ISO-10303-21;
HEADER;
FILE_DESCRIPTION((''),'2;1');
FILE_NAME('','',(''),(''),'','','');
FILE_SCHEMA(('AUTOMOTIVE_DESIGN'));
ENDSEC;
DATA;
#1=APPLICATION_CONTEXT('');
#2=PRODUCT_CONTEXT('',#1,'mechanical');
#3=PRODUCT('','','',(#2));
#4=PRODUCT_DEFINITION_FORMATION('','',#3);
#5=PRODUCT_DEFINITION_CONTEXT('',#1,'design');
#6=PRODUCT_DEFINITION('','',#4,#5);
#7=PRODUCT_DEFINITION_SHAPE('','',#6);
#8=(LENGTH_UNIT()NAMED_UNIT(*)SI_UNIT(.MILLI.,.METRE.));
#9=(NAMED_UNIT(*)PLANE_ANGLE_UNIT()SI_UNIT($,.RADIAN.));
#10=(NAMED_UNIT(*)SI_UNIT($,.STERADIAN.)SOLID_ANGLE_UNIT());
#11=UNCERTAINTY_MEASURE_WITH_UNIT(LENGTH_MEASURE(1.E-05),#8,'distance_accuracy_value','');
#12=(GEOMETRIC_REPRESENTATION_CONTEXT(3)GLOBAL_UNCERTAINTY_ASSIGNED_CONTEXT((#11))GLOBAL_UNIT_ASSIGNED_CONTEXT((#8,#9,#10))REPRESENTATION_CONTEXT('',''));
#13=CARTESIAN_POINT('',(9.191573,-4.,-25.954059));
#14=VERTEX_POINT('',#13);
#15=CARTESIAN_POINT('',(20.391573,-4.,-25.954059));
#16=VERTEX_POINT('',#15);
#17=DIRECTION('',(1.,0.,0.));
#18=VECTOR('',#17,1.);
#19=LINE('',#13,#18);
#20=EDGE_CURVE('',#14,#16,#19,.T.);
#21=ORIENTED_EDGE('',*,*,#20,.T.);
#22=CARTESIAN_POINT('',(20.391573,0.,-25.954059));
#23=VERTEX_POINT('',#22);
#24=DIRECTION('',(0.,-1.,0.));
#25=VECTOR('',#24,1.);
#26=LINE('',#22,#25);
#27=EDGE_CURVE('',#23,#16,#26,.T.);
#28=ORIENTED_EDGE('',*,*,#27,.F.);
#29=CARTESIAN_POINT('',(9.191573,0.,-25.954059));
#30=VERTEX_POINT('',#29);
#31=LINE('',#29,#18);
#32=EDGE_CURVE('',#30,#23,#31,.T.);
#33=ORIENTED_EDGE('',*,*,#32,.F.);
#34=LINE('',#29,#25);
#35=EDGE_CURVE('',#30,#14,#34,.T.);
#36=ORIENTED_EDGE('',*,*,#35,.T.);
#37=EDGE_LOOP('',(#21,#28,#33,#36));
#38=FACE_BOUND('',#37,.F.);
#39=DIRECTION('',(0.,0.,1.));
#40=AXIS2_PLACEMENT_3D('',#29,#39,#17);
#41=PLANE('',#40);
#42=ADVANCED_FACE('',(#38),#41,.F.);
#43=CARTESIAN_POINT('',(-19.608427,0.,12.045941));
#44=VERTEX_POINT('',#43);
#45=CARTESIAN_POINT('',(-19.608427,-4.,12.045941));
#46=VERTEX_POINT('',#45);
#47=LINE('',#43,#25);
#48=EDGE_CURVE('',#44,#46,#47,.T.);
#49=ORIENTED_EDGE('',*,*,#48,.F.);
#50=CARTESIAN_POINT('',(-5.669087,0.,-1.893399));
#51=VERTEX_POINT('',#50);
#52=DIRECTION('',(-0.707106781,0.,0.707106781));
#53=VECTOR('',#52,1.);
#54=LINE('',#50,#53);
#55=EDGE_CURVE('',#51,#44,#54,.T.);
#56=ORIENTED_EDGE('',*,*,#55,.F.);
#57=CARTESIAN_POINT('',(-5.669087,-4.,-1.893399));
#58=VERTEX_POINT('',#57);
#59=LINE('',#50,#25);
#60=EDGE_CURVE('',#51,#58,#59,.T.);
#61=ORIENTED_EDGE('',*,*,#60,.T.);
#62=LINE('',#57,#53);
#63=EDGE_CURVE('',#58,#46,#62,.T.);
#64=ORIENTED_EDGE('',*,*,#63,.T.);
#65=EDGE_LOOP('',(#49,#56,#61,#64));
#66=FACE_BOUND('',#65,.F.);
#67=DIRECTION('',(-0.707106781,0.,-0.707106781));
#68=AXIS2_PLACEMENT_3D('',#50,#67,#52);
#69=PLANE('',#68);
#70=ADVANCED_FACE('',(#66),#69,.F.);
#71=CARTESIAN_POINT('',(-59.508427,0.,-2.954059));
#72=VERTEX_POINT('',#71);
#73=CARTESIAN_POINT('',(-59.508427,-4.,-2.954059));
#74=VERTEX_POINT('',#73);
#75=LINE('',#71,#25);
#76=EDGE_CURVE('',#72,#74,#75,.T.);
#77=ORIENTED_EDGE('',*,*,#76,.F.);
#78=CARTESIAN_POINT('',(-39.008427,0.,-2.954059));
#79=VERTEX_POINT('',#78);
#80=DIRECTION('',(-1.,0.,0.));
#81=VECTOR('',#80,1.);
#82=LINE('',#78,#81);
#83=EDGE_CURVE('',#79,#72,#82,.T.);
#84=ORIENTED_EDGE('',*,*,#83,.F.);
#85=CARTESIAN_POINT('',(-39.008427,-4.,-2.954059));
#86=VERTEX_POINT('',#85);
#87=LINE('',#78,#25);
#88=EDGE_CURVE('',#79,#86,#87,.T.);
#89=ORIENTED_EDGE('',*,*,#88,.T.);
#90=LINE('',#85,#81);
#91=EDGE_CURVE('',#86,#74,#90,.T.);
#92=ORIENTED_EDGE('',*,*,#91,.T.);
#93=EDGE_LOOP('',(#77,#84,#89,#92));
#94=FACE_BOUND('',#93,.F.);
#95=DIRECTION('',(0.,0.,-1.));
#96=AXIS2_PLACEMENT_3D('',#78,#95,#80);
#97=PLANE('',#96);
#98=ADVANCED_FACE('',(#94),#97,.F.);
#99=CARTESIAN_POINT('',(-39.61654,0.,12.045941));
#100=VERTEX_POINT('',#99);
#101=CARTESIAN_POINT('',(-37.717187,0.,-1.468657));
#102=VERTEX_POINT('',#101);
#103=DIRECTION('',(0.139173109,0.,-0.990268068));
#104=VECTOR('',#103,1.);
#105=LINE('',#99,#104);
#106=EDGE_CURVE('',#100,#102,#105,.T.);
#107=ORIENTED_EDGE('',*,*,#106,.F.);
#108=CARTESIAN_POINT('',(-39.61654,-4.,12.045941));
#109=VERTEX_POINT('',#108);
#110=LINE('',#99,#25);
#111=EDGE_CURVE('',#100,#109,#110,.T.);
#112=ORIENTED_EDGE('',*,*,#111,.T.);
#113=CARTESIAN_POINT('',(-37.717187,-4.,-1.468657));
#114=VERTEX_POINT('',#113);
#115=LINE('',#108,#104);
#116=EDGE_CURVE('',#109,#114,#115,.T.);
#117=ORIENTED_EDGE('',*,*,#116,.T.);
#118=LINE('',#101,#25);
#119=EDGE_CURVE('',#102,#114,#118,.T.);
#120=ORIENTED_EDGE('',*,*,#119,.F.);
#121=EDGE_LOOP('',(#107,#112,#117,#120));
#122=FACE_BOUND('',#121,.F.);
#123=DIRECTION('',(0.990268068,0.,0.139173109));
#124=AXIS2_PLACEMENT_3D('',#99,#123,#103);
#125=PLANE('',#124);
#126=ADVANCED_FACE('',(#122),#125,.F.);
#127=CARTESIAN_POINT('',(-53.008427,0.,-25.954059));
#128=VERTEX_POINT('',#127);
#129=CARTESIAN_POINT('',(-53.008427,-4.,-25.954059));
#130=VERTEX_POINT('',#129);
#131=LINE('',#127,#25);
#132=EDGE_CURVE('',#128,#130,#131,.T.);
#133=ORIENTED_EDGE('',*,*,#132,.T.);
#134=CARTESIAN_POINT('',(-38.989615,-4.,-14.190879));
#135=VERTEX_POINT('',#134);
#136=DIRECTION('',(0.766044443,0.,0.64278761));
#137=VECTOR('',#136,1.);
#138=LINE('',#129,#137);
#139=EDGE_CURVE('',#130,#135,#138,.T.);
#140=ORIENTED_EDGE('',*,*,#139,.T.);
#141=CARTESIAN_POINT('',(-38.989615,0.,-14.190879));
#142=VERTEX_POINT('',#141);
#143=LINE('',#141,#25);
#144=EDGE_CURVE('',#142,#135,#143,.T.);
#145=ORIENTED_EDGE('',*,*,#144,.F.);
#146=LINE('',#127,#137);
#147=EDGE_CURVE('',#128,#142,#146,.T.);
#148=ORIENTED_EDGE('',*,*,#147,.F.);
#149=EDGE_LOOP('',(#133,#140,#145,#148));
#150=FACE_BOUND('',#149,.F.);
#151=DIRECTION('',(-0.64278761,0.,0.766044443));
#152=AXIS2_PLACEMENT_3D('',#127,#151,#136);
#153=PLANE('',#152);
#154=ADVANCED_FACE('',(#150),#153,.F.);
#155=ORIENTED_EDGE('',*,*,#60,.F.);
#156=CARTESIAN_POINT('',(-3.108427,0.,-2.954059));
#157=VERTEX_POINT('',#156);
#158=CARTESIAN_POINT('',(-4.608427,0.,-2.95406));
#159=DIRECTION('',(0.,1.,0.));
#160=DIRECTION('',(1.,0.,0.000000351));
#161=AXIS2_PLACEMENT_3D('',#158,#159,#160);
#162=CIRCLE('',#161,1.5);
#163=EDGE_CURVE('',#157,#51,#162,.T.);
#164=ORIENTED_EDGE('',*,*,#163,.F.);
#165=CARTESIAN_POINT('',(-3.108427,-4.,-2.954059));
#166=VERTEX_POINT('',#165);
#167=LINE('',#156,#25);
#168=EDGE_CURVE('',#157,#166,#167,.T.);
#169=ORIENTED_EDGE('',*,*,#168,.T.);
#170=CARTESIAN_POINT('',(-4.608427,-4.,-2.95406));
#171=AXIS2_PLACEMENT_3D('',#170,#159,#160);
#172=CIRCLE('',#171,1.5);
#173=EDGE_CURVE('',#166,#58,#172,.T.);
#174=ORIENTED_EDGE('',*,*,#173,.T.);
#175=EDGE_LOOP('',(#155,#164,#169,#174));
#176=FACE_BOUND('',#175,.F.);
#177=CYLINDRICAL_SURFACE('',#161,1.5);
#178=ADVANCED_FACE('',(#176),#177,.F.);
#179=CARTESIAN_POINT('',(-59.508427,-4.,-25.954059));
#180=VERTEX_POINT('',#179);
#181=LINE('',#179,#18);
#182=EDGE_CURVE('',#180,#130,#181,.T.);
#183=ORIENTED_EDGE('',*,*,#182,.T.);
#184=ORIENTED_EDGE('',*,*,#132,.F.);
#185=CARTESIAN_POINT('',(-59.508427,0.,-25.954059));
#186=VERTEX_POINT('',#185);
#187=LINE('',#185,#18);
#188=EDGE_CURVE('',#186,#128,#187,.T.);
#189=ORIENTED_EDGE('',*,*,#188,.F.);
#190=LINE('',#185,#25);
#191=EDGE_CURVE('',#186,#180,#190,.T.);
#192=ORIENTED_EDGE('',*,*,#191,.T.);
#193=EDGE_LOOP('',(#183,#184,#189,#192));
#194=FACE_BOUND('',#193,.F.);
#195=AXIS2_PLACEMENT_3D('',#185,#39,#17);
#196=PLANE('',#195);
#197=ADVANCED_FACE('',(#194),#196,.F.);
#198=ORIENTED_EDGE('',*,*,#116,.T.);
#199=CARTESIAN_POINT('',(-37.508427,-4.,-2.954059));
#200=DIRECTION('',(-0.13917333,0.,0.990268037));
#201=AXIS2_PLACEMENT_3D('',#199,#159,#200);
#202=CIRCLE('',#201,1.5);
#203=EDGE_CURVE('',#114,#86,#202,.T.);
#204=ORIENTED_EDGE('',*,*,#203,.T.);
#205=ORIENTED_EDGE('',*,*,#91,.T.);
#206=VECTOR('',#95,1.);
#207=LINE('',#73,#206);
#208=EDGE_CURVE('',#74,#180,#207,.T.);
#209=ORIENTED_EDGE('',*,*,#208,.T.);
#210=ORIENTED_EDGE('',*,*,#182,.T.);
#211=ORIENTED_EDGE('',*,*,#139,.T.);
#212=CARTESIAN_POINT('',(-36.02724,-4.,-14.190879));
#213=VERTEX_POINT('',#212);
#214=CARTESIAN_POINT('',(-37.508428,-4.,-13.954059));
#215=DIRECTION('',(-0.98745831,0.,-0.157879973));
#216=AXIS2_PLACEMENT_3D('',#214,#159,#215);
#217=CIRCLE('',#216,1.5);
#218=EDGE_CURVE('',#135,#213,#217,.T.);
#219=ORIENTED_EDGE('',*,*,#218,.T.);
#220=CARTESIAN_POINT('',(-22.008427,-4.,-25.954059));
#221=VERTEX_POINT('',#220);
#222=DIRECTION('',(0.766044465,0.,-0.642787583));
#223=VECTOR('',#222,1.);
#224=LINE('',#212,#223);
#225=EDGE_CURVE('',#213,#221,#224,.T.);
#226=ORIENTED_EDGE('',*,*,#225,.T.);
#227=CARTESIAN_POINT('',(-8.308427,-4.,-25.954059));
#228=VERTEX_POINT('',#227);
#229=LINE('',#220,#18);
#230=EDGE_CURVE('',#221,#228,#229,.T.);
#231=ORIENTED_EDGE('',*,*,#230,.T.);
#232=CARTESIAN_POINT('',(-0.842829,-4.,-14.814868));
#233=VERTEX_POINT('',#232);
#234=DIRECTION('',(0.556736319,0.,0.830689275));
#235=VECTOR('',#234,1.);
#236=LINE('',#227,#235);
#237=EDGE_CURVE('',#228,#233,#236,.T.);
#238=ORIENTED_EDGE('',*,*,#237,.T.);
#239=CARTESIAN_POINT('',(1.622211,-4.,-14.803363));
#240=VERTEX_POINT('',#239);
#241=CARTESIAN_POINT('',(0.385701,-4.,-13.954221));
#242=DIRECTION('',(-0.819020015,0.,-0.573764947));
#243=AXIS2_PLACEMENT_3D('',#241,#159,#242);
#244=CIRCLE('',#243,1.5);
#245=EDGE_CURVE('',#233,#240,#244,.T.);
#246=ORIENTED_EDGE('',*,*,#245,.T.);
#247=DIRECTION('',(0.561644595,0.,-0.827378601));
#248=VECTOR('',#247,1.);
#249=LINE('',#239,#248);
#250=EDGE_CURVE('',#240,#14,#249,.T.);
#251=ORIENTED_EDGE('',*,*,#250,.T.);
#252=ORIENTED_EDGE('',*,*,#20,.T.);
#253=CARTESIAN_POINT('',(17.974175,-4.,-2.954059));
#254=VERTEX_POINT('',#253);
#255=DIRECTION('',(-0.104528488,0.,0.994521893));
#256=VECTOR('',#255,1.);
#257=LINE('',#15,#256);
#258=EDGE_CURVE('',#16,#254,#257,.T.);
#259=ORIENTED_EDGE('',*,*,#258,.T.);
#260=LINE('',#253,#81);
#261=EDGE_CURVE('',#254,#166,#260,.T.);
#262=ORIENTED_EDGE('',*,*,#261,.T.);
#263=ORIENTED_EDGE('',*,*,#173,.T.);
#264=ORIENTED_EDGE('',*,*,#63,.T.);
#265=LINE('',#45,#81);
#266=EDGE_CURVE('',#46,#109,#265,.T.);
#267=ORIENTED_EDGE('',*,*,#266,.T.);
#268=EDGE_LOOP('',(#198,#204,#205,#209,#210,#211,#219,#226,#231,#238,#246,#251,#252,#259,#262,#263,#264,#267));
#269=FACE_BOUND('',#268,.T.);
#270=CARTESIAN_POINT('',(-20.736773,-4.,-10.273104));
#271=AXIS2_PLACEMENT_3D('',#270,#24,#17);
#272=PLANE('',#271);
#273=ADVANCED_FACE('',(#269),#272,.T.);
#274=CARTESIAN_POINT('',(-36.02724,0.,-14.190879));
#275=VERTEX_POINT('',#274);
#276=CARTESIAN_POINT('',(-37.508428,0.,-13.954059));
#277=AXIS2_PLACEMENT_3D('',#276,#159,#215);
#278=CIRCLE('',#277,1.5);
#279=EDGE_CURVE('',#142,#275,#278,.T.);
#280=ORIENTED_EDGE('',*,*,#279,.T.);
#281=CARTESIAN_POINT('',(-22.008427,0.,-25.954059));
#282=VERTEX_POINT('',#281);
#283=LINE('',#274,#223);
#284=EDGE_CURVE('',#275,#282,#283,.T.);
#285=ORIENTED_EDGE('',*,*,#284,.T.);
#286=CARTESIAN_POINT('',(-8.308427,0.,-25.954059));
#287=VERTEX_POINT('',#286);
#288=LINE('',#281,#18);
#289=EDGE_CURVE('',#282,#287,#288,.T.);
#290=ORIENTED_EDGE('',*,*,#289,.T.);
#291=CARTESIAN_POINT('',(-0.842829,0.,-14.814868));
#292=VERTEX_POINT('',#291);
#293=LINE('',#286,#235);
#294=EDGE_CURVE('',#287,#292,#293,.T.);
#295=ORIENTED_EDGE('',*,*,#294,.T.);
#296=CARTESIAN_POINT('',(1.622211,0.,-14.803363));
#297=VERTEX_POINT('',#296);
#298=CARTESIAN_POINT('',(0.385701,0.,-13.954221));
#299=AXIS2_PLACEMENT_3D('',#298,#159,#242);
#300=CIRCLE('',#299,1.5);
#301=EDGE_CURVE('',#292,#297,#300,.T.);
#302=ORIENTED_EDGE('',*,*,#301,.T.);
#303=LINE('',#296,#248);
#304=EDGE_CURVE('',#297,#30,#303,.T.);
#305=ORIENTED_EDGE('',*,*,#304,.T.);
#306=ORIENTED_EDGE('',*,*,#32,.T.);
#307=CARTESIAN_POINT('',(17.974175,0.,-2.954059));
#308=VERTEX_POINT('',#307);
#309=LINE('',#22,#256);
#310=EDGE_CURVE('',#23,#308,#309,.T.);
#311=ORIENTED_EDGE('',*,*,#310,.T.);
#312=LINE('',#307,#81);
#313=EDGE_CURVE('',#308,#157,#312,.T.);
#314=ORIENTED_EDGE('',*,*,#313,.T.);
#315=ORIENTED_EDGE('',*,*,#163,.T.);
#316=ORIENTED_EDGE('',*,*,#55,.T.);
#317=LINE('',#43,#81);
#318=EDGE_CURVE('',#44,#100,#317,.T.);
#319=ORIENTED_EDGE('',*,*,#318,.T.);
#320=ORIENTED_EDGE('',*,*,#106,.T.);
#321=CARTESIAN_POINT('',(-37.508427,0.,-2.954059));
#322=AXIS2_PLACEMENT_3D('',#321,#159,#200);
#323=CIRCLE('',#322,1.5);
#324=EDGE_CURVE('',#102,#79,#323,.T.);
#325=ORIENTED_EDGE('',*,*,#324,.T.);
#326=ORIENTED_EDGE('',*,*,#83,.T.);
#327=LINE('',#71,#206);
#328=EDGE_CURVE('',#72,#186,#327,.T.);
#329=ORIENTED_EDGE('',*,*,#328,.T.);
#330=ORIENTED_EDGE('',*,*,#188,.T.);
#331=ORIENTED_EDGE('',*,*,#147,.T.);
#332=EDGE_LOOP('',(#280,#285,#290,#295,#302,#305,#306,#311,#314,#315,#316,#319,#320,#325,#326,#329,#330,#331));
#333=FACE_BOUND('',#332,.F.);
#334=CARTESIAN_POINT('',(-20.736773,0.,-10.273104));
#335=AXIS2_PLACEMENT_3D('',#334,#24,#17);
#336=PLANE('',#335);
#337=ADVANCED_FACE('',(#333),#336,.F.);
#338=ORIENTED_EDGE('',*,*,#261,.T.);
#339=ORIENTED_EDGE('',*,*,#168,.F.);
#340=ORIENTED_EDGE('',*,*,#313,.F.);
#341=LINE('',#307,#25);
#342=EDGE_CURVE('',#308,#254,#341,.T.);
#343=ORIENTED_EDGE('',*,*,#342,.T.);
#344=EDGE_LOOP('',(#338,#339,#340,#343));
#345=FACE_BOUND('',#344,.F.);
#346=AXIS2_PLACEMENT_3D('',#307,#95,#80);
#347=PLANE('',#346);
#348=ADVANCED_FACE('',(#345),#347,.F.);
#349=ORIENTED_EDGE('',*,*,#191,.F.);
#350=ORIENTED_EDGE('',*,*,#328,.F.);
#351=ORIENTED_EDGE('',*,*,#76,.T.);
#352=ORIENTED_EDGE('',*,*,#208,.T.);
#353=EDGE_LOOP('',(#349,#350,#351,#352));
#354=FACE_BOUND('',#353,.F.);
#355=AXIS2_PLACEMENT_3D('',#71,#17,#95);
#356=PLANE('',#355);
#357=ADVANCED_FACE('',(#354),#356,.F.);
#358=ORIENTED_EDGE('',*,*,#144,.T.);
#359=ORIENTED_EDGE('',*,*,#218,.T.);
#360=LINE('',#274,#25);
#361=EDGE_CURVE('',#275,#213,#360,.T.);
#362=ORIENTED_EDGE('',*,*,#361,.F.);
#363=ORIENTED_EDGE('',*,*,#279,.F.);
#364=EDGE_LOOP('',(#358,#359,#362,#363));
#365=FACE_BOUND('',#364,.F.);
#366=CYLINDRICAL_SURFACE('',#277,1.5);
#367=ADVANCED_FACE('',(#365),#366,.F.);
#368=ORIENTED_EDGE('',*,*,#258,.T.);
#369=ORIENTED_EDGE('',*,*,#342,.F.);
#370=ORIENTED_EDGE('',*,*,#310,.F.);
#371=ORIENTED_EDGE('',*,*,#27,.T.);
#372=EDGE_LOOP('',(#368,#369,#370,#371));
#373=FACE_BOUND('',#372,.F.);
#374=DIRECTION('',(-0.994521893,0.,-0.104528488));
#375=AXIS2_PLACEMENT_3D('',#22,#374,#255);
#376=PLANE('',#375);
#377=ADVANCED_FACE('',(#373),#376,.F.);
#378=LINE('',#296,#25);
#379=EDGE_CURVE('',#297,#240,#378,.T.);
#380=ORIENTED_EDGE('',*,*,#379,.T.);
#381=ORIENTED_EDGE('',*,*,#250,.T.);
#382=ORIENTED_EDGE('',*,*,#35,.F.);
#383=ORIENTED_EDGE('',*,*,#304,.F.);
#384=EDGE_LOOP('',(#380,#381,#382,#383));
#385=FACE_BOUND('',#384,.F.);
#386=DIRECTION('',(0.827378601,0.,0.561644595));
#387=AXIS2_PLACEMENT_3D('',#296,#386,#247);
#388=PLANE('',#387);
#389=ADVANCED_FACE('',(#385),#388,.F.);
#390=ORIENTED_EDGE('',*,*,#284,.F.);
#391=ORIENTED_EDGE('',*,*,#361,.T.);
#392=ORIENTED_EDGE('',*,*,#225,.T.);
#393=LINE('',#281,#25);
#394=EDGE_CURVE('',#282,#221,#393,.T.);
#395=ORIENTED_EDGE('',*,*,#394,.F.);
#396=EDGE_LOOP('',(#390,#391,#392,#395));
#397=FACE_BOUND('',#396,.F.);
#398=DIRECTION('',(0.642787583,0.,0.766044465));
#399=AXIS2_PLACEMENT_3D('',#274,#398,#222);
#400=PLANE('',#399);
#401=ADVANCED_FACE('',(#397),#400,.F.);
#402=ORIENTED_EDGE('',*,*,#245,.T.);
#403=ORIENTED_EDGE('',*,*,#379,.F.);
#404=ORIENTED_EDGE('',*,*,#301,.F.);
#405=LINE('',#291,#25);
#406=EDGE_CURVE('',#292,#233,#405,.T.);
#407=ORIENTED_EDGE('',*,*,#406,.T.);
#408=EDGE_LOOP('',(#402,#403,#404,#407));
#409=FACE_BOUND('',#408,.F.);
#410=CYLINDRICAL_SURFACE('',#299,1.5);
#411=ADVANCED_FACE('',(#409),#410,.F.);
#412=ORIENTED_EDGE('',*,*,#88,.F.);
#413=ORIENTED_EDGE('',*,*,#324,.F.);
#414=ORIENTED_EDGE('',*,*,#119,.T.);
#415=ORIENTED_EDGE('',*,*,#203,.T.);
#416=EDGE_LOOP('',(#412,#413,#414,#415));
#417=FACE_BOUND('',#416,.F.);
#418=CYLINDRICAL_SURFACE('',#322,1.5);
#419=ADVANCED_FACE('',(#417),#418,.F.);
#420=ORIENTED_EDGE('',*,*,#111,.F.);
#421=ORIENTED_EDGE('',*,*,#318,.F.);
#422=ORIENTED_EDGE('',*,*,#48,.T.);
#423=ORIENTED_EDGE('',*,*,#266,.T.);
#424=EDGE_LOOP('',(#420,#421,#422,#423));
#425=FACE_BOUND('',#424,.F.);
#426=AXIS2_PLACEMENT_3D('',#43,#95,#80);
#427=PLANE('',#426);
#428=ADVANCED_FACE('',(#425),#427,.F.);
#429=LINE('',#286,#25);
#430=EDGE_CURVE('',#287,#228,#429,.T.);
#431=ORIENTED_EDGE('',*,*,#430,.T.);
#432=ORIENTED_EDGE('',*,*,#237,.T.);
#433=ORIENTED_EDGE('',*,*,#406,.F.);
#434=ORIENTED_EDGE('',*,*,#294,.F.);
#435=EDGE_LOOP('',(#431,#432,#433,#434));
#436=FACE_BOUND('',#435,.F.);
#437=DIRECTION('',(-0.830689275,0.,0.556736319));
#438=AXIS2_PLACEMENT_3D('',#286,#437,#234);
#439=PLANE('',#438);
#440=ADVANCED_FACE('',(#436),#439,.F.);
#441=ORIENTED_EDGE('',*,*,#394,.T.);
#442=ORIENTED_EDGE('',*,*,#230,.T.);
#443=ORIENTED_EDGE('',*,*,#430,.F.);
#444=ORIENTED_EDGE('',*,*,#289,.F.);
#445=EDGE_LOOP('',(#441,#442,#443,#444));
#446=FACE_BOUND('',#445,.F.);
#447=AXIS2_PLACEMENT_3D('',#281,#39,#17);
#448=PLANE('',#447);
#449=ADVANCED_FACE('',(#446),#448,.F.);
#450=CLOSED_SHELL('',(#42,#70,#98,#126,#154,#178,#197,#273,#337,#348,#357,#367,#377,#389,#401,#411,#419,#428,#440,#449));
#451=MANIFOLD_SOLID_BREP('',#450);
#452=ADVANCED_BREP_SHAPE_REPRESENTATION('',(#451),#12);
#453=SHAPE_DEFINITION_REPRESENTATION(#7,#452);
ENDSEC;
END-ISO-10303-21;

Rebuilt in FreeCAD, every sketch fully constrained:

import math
import FreeCAD as App
import Part
import Sketcher

V = App.Vector
Q = App.Units.Quantity

doc = App.newDocument("Part")
body = doc.addObject("PartDesign::Body", "Body")

# Sketch on XZ plane
sketch1 = body.newObject("Sketcher::SketchObject", "Sketch")
sketch1.AttachmentSupport = (doc.getObject("XZ_Plane"), [""])
sketch1.MapMode = "FlatFace"
sketch1.addGeometry([
    Part.LineSegment(V(-19.608427, 12.045941, 0), V(-39.61654, 12.045941, 0)),  # 0
    Part.LineSegment(V(-39.61654, 12.045941, 0), V(-37.717187, -1.468657, 0)),  # 1
    Part.ArcOfCircle(Part.Circle(V(-37.508427, -2.954059, 0), V(0, 0, 1), 1.5), math.radians(179.999998), math.radians(458.000013)),  # 2
    Part.LineSegment(V(-39.008427, -2.954059, 0), V(-59.508427, -2.954059, 0)),  # 3
    Part.LineSegment(V(-59.508427, -2.954059, 0), V(-59.508427, -25.954059, 0)),  # 4
    Part.LineSegment(V(-59.508427, -25.954059, 0), V(-53.008427, -25.954059, 0)),  # 5
    Part.LineSegment(V(-53.008427, -25.954059, 0), V(-38.989615, -14.190879, 0)),  # 6
    Part.ArcOfCircle(Part.Circle(V(-37.508428, -13.954059, 0), V(0, 0, 1), 1.5), math.radians(-9.083864), math.radians(189.083864)),  # 7
    Part.LineSegment(V(-36.02724, -14.190879, 0), V(-22.008427, -25.954059, 0)),  # 8
    Part.LineSegment(V(-22.008427, -25.954059, 0), V(-8.308427, -25.954059, 0)),  # 9
    Part.LineSegment(V(-8.308427, -25.954059, 0), V(-0.842829, -14.814868, 0)),  # 10
    Part.ArcOfCircle(Part.Circle(V(0.385701, -13.954221, 0), V(0, 0, 1), 1.5), math.radians(-34.478361), math.radians(215.013187)),  # 11
    Part.LineSegment(V(1.622211, -14.803363, 0), V(9.191573, -25.954059, 0)),  # 12
    Part.LineSegment(V(9.191573, -25.954059, 0), V(20.391573, -25.954059, 0)),  # 13
    Part.LineSegment(V(20.391573, -25.954059, 0), V(17.974175, -2.954059, 0)),  # 14
    Part.LineSegment(V(17.974175, -2.954059, 0), V(-3.108427, -2.954059, 0)),  # 15
    Part.ArcOfCircle(Part.Circle(V(-4.608427, -2.95406, 0), V(0, 0, 1), 1.5), math.radians(134.999984), math.radians(360.00002)),  # 16
    Part.LineSegment(V(-5.669087, -1.893399, 0), V(-19.608427, 12.045941, 0)),  # 17
], False)
sketch1.addConstraint([
    Sketcher.Constraint("Coincident", 0, 2, 1, 1),
    Sketcher.Constraint("Coincident", 1, 2, 2, 2),
    Sketcher.Constraint("Coincident", 2, 1, 3, 1),
    Sketcher.Constraint("Coincident", 3, 2, 4, 1),
    Sketcher.Constraint("Coincident", 4, 2, 5, 1),
    Sketcher.Constraint("Coincident", 5, 2, 6, 1),
    Sketcher.Constraint("Coincident", 6, 2, 7, 2),
    Sketcher.Constraint("Coincident", 7, 1, 8, 1),
    Sketcher.Constraint("Coincident", 8, 2, 9, 1),
    Sketcher.Constraint("Coincident", 9, 2, 10, 1),
    Sketcher.Constraint("Coincident", 10, 2, 11, 2),
    Sketcher.Constraint("Coincident", 11, 1, 12, 1),
    Sketcher.Constraint("Coincident", 12, 2, 13, 1),
    Sketcher.Constraint("Coincident", 13, 2, 14, 1),
    Sketcher.Constraint("Coincident", 14, 2, 15, 1),
    Sketcher.Constraint("Coincident", 15, 2, 16, 2),
    Sketcher.Constraint("Coincident", 16, 1, 17, 1),
    Sketcher.Constraint("Coincident", 17, 2, 0, 1),
    Sketcher.Constraint("Horizontal", 0),
    Sketcher.Constraint("Horizontal", 3),
    Sketcher.Constraint("Vertical", 4),
    Sketcher.Constraint("Horizontal", 5),
    Sketcher.Constraint("Horizontal", 9),
    Sketcher.Constraint("Horizontal", 13),
    Sketcher.Constraint("Horizontal", 15),
    Sketcher.Constraint("Equal", 2, 7),
    Sketcher.Constraint("Equal", 7, 11),
    Sketcher.Constraint("Equal", 11, 16),
    Sketcher.Constraint("Horizontal", 2, 3, 16, 3),
    Sketcher.Constraint("Horizontal", 16, 3, 2, 1),
    Sketcher.Constraint("Horizontal", 6, 2, 7, 1),
    Sketcher.Constraint("Horizontal", 5, 2, 8, 2),
    Sketcher.Constraint("Horizontal", 9, 2, 12, 2),
    Sketcher.Constraint("Horizontal", 3, 2, 14, 2),
    Sketcher.Constraint("Vertical", 2, 3, 7, 3),
    Sketcher.Constraint("Equal", 6, 8),
    Sketcher.Constraint("Radius", 2, Q("1.5 mm")),
    Sketcher.Constraint("DistanceY", 4, 2, 4, 1, Q("23 mm")),
    Sketcher.Constraint("Angle", 1, Q("-82 deg")),
    Sketcher.Constraint("Angle", 6, Q("40 deg")),
    Sketcher.Constraint("Angle", 14, Q("96.000001 deg")),
    Sketcher.Constraint("Angle", 17, Q("135 deg")),
    Sketcher.Constraint("DistanceX", 3, 2, 3, 1, Q("20.5 mm")),
    Sketcher.Constraint("DistanceX", 5, 1, 5, 2, Q("6.5 mm")),
    Sketcher.Constraint("DistanceX", 9, 1, 9, 2, Q("13.7 mm")),
    Sketcher.Constraint("DistanceX", 13, 1, 13, 2, Q("11.2 mm")),
    Sketcher.Constraint("DistanceY", 7, 3, 2, 3, Q("11 mm")),
    Sketcher.Constraint("DistanceY", 2, 3, 0, 2, Q("15 mm")),
    Sketcher.Constraint("DistanceX", 17, 2, 16, 3, Q("15 mm")),
    Sketcher.Constraint("DistanceX", 2, 3, 16, 3, Q("32.9 mm")),
    Sketcher.Constraint("DistanceX", 9, 2, 12, 2, Q("17.5 mm")),
    Sketcher.Constraint("DistanceX", -1, 1, 11, 3, Q("0.385701 mm")),
    Sketcher.Constraint("DistanceY", 16, 1, -1, 1, Q("1.893399 mm")),
    Sketcher.Constraint("DistanceY", 2, 1, 1, 2, Q("1.485402 mm")),
    Sketcher.Constraint("DistanceX", 16, 3, 10, 2, Q("3.765598 mm")),
    Sketcher.Constraint("DistanceX", 16, 1, 11, 1, Q("7.291298 mm")),
    Sketcher.Constraint("Distance", 12, Q("13.477139 mm")),
    Sketcher.Constraint("DistanceY", 11, 3, -1, 1, Q("13.954221 mm")),
])
pad1 = body.newObject("PartDesign::Pad", "Pad")
pad1.Profile = sketch1
pad1.Length = 4

doc.recompute()
